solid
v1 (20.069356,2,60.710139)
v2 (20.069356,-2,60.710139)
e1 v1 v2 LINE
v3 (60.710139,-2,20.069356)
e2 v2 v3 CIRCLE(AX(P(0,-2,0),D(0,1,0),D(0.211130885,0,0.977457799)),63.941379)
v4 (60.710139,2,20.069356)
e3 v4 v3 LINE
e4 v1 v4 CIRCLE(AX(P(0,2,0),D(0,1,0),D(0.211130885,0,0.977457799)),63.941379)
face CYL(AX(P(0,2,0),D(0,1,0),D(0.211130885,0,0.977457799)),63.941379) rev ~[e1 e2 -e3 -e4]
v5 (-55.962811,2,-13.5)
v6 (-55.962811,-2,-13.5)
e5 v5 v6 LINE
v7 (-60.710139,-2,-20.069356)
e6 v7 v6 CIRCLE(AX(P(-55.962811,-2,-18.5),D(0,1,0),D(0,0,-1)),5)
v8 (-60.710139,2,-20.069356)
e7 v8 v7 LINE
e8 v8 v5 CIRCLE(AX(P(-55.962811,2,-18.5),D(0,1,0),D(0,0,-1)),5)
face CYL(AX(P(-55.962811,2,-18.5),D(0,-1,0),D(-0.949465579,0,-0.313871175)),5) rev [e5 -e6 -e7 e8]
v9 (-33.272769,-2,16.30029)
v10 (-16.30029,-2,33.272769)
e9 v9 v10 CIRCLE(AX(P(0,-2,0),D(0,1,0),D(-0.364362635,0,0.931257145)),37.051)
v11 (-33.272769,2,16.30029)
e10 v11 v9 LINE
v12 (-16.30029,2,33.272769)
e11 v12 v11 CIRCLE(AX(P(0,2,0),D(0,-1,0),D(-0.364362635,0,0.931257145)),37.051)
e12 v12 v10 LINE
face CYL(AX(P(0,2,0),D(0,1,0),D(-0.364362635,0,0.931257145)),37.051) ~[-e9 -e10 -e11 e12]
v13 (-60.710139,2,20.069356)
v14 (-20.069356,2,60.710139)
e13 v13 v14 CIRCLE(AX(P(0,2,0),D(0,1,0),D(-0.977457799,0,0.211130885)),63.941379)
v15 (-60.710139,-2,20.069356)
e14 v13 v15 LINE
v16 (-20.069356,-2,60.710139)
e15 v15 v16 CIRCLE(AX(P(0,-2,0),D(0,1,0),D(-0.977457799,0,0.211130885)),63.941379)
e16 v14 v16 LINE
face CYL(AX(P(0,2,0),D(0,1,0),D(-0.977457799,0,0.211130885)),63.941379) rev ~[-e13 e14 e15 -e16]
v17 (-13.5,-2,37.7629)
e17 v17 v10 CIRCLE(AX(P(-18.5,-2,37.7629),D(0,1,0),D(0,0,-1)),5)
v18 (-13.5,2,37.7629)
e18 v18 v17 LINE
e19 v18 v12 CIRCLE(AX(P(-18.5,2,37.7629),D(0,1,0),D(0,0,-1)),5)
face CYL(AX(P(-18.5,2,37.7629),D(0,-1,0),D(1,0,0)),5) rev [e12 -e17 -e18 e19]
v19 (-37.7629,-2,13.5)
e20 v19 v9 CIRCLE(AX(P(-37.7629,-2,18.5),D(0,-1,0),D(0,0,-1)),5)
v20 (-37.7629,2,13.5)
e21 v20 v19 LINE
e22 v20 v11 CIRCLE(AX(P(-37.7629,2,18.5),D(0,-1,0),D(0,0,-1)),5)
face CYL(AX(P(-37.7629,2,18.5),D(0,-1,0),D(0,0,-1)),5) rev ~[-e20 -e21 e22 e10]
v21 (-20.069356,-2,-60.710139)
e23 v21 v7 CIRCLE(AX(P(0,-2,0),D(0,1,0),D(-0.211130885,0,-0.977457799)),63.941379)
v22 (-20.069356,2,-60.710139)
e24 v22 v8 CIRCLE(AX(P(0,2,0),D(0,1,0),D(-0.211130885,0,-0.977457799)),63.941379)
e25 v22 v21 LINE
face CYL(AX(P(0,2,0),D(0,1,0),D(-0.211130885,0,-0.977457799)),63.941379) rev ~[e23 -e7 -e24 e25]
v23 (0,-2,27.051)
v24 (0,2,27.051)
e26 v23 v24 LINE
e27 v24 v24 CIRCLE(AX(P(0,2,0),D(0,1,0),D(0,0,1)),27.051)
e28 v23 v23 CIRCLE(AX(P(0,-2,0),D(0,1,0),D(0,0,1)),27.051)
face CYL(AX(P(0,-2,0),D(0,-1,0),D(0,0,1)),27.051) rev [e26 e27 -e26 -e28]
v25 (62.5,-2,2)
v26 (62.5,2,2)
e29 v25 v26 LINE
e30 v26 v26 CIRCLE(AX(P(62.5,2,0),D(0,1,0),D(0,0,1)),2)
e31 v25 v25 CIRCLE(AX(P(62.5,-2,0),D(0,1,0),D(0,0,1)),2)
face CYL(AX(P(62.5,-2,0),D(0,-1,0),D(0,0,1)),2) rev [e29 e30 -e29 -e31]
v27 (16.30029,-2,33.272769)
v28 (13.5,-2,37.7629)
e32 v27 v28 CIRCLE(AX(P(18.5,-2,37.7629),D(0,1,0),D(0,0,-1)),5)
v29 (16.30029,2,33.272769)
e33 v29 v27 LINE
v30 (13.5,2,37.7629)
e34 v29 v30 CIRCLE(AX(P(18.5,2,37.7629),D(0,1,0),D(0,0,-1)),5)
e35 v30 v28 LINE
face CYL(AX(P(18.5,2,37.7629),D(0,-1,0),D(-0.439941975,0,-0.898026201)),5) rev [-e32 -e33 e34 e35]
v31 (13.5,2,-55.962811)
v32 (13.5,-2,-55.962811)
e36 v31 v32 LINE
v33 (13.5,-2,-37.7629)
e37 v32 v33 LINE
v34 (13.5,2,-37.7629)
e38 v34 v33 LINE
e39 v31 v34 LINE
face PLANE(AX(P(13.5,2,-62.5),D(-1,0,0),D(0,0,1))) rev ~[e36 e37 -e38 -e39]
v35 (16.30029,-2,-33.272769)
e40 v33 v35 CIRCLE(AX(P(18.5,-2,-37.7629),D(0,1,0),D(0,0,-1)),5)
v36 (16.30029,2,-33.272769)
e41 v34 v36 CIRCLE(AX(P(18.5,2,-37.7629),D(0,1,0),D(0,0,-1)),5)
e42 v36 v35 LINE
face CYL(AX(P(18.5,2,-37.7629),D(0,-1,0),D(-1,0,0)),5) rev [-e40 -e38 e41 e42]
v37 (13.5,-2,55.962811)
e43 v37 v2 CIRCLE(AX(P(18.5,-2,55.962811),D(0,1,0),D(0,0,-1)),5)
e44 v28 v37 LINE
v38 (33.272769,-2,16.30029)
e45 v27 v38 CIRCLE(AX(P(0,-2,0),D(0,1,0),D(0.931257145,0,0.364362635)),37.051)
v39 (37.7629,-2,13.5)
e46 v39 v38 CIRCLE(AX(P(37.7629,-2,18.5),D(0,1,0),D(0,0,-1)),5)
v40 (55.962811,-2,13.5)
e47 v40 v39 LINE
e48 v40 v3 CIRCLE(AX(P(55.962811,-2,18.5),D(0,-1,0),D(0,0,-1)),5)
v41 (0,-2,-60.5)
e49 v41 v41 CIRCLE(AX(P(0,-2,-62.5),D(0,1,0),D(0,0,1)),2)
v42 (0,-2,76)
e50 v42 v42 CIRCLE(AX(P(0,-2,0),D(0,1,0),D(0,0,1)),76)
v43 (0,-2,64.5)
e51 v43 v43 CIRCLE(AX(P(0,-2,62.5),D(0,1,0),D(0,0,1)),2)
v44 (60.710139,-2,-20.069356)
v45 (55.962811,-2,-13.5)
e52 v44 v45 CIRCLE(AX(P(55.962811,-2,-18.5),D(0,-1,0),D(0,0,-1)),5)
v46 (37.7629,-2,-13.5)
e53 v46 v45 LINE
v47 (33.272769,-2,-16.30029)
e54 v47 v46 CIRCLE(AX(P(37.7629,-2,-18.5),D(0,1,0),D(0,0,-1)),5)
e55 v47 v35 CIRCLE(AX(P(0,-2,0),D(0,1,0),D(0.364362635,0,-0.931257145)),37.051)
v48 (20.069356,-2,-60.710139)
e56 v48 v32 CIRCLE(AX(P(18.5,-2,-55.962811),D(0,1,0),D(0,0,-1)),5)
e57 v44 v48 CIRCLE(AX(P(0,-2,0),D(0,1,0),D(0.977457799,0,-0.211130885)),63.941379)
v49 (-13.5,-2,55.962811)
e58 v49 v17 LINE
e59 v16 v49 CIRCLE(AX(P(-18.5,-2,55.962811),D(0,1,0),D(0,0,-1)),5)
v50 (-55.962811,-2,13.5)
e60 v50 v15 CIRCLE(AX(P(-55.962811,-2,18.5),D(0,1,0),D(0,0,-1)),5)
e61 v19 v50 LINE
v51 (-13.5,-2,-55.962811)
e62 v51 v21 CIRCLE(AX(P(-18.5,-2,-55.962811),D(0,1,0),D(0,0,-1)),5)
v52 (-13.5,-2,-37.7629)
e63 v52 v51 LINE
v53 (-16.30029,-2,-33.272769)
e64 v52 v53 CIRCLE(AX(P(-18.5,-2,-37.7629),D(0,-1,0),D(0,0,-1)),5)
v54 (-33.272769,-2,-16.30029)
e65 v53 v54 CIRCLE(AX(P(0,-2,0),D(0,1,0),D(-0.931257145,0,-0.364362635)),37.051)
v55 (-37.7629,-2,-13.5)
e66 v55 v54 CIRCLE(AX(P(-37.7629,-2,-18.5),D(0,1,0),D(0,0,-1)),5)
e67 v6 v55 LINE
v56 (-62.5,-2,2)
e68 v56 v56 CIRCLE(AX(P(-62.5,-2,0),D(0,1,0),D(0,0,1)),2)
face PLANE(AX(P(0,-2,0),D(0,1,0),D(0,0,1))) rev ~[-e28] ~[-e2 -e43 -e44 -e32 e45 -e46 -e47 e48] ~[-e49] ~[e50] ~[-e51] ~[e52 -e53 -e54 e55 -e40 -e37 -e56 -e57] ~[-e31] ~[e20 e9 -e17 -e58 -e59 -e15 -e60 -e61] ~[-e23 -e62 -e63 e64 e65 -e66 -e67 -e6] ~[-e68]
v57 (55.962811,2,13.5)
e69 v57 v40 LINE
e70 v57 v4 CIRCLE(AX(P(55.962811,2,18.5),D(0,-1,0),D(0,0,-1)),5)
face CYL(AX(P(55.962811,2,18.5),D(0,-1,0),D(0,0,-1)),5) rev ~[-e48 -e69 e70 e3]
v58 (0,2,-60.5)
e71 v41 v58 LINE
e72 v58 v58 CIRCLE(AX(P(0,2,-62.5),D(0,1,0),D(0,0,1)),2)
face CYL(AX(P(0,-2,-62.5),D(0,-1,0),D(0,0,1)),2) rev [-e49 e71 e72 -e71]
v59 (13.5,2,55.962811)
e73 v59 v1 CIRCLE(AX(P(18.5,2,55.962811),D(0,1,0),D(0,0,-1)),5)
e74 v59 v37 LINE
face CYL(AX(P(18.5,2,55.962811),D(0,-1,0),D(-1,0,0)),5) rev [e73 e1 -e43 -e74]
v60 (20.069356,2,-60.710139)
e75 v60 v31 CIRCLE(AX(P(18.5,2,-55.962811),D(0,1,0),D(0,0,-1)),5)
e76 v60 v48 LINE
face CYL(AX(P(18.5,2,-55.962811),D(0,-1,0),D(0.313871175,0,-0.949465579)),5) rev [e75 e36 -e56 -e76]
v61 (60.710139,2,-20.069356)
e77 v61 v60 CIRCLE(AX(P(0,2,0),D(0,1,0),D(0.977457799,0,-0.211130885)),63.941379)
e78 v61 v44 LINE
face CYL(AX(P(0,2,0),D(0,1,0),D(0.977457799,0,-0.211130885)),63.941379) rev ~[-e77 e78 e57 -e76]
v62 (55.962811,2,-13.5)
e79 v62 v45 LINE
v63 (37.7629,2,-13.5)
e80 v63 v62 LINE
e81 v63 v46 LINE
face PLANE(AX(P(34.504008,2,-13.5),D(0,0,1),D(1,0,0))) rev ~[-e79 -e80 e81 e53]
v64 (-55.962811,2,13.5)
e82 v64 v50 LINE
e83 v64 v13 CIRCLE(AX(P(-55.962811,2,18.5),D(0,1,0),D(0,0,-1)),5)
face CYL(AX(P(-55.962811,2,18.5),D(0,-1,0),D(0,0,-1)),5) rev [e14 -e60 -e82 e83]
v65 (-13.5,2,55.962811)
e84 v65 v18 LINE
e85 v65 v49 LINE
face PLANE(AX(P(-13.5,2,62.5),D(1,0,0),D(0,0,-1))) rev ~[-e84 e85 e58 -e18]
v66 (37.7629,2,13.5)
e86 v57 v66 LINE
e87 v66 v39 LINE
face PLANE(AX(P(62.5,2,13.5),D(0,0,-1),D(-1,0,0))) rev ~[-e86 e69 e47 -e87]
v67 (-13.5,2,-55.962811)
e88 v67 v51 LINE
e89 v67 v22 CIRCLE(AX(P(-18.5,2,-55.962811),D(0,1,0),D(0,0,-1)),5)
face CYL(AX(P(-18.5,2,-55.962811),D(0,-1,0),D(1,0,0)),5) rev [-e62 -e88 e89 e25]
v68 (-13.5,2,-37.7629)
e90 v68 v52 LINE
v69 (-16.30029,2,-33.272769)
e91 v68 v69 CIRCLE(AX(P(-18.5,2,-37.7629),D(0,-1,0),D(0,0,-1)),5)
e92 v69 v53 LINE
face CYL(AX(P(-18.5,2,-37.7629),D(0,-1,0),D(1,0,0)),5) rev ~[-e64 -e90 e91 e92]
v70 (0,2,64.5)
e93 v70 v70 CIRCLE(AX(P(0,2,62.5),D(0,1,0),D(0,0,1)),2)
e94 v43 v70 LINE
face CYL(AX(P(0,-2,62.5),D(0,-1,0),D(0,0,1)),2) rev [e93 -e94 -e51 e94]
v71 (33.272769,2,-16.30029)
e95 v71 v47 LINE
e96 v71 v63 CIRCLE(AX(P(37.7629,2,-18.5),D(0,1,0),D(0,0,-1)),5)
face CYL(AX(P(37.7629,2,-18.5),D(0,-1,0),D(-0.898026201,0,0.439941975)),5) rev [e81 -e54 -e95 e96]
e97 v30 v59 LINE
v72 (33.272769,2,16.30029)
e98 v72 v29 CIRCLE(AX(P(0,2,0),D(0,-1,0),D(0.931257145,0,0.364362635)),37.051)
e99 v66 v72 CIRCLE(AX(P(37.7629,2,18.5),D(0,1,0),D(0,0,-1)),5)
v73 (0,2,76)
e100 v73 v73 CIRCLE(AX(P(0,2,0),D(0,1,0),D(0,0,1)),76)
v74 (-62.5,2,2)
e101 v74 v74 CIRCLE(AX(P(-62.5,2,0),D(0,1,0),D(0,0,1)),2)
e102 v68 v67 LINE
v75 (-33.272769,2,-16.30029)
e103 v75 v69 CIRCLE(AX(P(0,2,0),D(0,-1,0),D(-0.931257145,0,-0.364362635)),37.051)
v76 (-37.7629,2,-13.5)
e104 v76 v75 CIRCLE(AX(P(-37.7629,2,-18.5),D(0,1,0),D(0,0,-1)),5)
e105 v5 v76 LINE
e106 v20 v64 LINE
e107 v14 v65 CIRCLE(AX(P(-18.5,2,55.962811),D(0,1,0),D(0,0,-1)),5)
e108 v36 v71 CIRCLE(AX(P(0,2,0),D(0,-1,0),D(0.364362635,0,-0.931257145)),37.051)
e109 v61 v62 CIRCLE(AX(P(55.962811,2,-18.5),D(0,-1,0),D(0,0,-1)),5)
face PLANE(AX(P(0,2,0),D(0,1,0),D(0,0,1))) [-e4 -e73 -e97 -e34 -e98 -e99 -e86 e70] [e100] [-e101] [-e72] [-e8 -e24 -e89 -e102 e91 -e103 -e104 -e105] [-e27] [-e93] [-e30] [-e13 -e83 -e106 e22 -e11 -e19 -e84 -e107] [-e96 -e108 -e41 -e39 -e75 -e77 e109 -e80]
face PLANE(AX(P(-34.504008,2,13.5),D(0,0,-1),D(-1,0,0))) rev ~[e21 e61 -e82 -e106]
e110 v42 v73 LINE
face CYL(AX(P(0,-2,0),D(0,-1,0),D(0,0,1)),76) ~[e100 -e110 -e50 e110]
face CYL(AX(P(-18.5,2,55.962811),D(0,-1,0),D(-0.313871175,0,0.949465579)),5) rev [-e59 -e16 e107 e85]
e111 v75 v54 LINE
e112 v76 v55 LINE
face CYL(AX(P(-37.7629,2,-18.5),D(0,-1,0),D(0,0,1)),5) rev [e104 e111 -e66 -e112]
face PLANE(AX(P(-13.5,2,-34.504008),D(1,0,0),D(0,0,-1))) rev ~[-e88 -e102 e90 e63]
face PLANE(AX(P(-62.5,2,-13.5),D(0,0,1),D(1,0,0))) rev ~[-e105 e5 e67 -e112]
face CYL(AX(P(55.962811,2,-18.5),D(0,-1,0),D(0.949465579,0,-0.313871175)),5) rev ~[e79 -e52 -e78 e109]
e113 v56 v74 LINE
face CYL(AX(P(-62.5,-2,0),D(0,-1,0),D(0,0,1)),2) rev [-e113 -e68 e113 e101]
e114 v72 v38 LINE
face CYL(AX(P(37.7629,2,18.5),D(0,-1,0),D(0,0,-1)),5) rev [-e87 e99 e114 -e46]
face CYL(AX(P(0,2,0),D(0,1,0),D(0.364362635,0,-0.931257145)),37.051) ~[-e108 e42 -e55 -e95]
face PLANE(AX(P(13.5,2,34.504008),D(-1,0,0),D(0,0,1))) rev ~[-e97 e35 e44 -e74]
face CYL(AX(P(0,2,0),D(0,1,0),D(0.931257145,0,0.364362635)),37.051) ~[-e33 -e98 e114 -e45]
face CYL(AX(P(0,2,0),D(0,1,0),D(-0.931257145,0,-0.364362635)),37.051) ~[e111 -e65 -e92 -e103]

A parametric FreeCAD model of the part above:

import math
import FreeCAD as App
import Part
import Sketcher


def edges_at(feature, points):
    """Names of the edges that pass closest to the given points."""
    edges = feature.Shape.Edges
    near = lambda p: min(range(len(edges)), key=lambda i: edges[i].distToShape(Part.Vertex(*p))[0])
    return sorted({f"Edge{near(p) + 1}" for p in points})

doc = App.newDocument("Part")
body = doc.addObject("PartDesign::Body", "Body")

sketch1 = body.newObject("Sketcher::SketchObject", "Sketch")
sketch1.AttachmentSupport = (doc.getObject("XZ_Plane"), [""])
sketch1.MapMode = "FlatFace"
sketch1.addGeometry(Part.Circle(App.Vector(0, 0, 0), App.Vector(0, 0, 1), 76), False)
sketch1.addGeometry(Part.Circle(App.Vector(0, -62.5, 0), App.Vector(0, 0, 1), 2), False)
sketch1.addGeometry(Part.Circle(App.Vector(-62.5, 0, 0), App.Vector(0, 0, 1), 2), False)
sketch1.addGeometry(Part.Circle(App.Vector(0, 0, 0), App.Vector(0, 0, 1), 27.1), False)
sketch1.addGeometry(Part.Circle(App.Vector(0, 62.5, 0), App.Vector(0, 0, 1), 2), False)
sketch1.addGeometry(Part.Circle(App.Vector(62.5, 0, 0), App.Vector(0, 0, 1), 2), False)
sketch1.addConstraint(Sketcher.Constraint("Coincident", 0, 3, -1, 1))
sketch1.addConstraint(Sketcher.Constraint("Coincident", 3, 3, -1, 1))
sketch1.addConstraint(Sketcher.Constraint("Equal", 1, 2))
sketch1.addConstraint(Sketcher.Constraint("Equal", 2, 4))
sketch1.addConstraint(Sketcher.Constraint("Equal", 4, 5))
sketch1.addConstraint(Sketcher.Constraint("Symmetric", 1, 3, 4, 3, -1, 1))
sketch1.addConstraint(Sketcher.Constraint("Symmetric", 2, 3, 5, 3, -1, 1))
sketch1.addConstraint(Sketcher.Constraint("PointOnObject", 1, 3, -2))
sketch1.addConstraint(Sketcher.Constraint("PointOnObject", 2, 3, -1))
sketch1.addConstraint(Sketcher.Constraint("Diameter", 0, 152.0))
sketch1.addConstraint(Sketcher.Constraint("Diameter", 1, 4.0))
sketch1.addConstraint(Sketcher.Constraint("Diameter", 3, 54.102))
sketch1.addConstraint(Sketcher.Constraint("DistanceY", 1, 3, 4, 3, 125.0))
sketch1.addConstraint(Sketcher.Constraint("DistanceX", 2, 3, 5, 3, 125.0))
pad1 = body.newObject("PartDesign::Pad", "Pad")
pad1.Profile = sketch1
pad1.Type = "TwoLengths"
pad1.Length = 2
pad1.Length2 = 2
pad1.Reversed = True

sketch2 = body.newObject("Sketcher::SketchObject", "Sketch001")
sketch2.AttachmentSupport = (doc.getObject("XZ_Plane"), [""])
sketch2.MapMode = "FlatFace"
sketch2.AttachmentOffset = App.Placement(App.Vector(0, 0, -2), App.Rotation())
sketch2.addGeometry(Part.ArcOfCircle(Part.Circle(App.Vector(0, 0, 0), App.Vector(0, 0, 1), 37), math.radians(-159), math.radians(-111)), False)
sketch2.addGeometry(Part.LineSegment(App.Vector(-14, -35, 0), App.Vector(-14, -62, 0)), False)
sketch2.addGeometry(Part.ArcOfCircle(Part.Circle(App.Vector(0, 0, 0), App.Vector(0, 0, 1), 64), math.radians(-168), math.radians(-102)), False)
sketch2.addGeometry(Part.LineSegment(App.Vector(-62, -14, 0), App.Vector(-35, -14, 0)), False)
sketch2.addGeometry(Part.ArcOfCircle(Part.Circle(App.Vector(0, 0, 0), App.Vector(0, 0, 1), 64), math.radians(-78), math.radians(-12)), False)
sketch2.addGeometry(Part.LineSegment(App.Vector(14, -62, 0), App.Vector(14, -35, 0)), False)
sketch2.addGeometry(Part.ArcOfCircle(Part.Circle(App.Vector(0, 0, 0), App.Vector(0, 0, 1), 37), math.radians(-69), math.radians(-21)), False)
sketch2.addGeometry(Part.LineSegment(App.Vector(35, -14, 0), App.Vector(62, -14, 0)), False)
sketch2.addGeometry(Part.LineSegment(App.Vector(62, 14, 0), App.Vector(35, 14, 0)), False)
sketch2.addGeometry(Part.ArcOfCircle(Part.Circle(App.Vector(0, 0, 0), App.Vector(0, 0, 1), 37), math.radians(21), math.radians(69)), False)
sketch2.addGeometry(Part.LineSegment(App.Vector(14, 35, 0), App.Vector(14, 62, 0)), False)
sketch2.addGeometry(Part.ArcOfCircle(Part.Circle(App.Vector(0, 0, 0), App.Vector(0, 0, 1), 64), math.radians(12), math.radians(78)), False)
sketch2.addGeometry(Part.ArcOfCircle(Part.Circle(App.Vector(0, 0, 0), App.Vector(0, 0, 1), 37), math.radians(111), math.radians(159)), False)
sketch2.addGeometry(Part.LineSegment(App.Vector(-35, 14, 0), App.Vector(-62, 14, 0)), False)
sketch2.addGeometry(Part.ArcOfCircle(Part.Circle(App.Vector(0, 0, 0), App.Vector(0, 0, 1), 64), math.radians(102), math.radians(168)), False)
sketch2.addGeometry(Part.LineSegment(App.Vector(-14, 62, 0), App.Vector(-14, 35, 0)), False)
sketch2.addConstraint(Sketcher.Constraint("Coincident", 0, 2, 1, 1))
sketch2.addConstraint(Sketcher.Constraint("Coincident", 1, 2, 2, 2))
sketch2.addConstraint(Sketcher.Constraint("Coincident", 2, 1, 3, 1))
sketch2.addConstraint(Sketcher.Constraint("Coincident", 3, 2, 0, 1))
sketch2.addConstraint(Sketcher.Constraint("Coincident", 4, 1, 5, 1))
sketch2.addConstraint(Sketcher.Constraint("Coincident", 5, 2, 6, 1))
sketch2.addConstraint(Sketcher.Constraint("Coincident", 6, 2, 7, 1))
sketch2.addConstraint(Sketcher.Constraint("Coincident", 7, 2, 4, 2))
sketch2.addConstraint(Sketcher.Constraint("Coincident", 8, 2, 9, 1))
sketch2.addConstraint(Sketcher.Constraint("Coincident", 9, 2, 10, 1))
sketch2.addConstraint(Sketcher.Constraint("Coincident", 10, 2, 11, 2))
sketch2.addConstraint(Sketcher.Constraint("Coincident", 11, 1, 8, 1))
sketch2.addConstraint(Sketcher.Constraint("Coincident", 12, 2, 13, 1))
sketch2.addConstraint(Sketcher.Constraint("Coincident", 13, 2, 14, 2))
sketch2.addConstraint(Sketcher.Constraint("Coincident", 14, 1, 15, 1))
sketch2.addConstraint(Sketcher.Constraint("Coincident", 15, 2, 12, 1))
sketch2.addConstraint(Sketcher.Constraint("Vertical", 1))
sketch2.addConstraint(Sketcher.Constraint("Horizontal", 3))
sketch2.addConstraint(Sketcher.Constraint("Vertical", 5))
sketch2.addConstraint(Sketcher.Constraint("Horizontal", 7))
sketch2.addConstraint(Sketcher.Constraint("Horizontal", 8))
sketch2.addConstraint(Sketcher.Constraint("Vertical", 10))
sketch2.addConstraint(Sketcher.Constraint("Horizontal", 13))
sketch2.addConstraint(Sketcher.Constraint("Vertical", 15))
sketch2.addConstraint(Sketcher.Constraint("Coincident", 0, 3, -1, 1))
sketch2.addConstraint(Sketcher.Constraint("Coincident", 2, 3, -1, 1))
sketch2.addConstraint(Sketcher.Constraint("Coincident", 4, 3, -1, 1))
sketch2.addConstraint(Sketcher.Constraint("Coincident", 6, 3, -1, 1))
sketch2.addConstraint(Sketcher.Constraint("Coincident", 9, 3, -1, 1))
sketch2.addConstraint(Sketcher.Constraint("Coincident", 11, 3, -1, 1))
sketch2.addConstraint(Sketcher.Constraint("Coincident", 12, 3, -1, 1))
sketch2.addConstraint(Sketcher.Constraint("Coincident", 14, 3, -1, 1))
sketch2.addConstraint(Sketcher.Constraint("Equal", 2, 4))
sketch2.addConstraint(Sketcher.Constraint("Equal", 0, 6))
sketch2.addConstraint(Sketcher.Constraint("Equal", 6, 9))
sketch2.addConstraint(Sketcher.Constraint("Equal", 4, 11))
sketch2.addConstraint(Sketcher.Constraint("Equal", 9, 12))
sketch2.addConstraint(Sketcher.Constraint("Equal", 11, 14))
sketch2.addConstraint(Sketcher.Constraint("Horizontal", 1, 2, 4, 1))
sketch2.addConstraint(Sketcher.Constraint("Horizontal", 3, 2, 6, 2))
sketch2.addConstraint(Sketcher.Constraint("Horizontal", 11, 1, 12, 2))
sketch2.addConstraint(Sketcher.Constraint("Horizontal", 10, 2, 14, 1))
sketch2.addConstraint(Sketcher.Constraint("Vertical", 6, 2, 8, 2))
sketch2.addConstraint(Sketcher.Constraint("Vertical", 5, 2, 9, 2))
sketch2.addConstraint(Sketcher.Constraint("Equal", 13, 1))
sketch2.addConstraint(Sketcher.Constraint("Radius", 0, 37.051))
sketch2.addConstraint(Sketcher.Constraint("DistanceX", 2, 1, 0, 2, 49.0))
sketch2.addConstraint(Sketcher.Constraint("DistanceX", 1, 2, 4, 1, 27.0))
pocket1 = body.newObject("PartDesign::Pocket", "Pocket")
pocket1.Profile = sketch2
pocket1.Type = "ThroughAll"
pocket1.Reversed = True
doc.recompute()

fillet = body.newObject("PartDesign::Fillet", "Fillet")
fillet.Base = (pocket1, edges_at(pocket1, [
    (-34.504, 0, 13.5),
    (-13.5, 0, 34.504),
    (-13.5, 0, 62.5),
    (-62.5, 0, 13.5),
    (13.5, 0, 34.504),
    (34.504, 0, 13.5),
    (62.5, 0, 13.5),
    (13.5, 0, 62.5),
    (34.504, 0, -13.5),
    (13.5, 0, -34.504),
    (13.5, 0, -62.5),
    (62.5, 0, -13.5),
    (-13.5, 0, -34.504),
    (-34.504, 0, -13.5),
    (-62.5, 0, -13.5),
    (-13.5, 0, -62.5),
]))
fillet.Radius = 5

doc.recompute()
